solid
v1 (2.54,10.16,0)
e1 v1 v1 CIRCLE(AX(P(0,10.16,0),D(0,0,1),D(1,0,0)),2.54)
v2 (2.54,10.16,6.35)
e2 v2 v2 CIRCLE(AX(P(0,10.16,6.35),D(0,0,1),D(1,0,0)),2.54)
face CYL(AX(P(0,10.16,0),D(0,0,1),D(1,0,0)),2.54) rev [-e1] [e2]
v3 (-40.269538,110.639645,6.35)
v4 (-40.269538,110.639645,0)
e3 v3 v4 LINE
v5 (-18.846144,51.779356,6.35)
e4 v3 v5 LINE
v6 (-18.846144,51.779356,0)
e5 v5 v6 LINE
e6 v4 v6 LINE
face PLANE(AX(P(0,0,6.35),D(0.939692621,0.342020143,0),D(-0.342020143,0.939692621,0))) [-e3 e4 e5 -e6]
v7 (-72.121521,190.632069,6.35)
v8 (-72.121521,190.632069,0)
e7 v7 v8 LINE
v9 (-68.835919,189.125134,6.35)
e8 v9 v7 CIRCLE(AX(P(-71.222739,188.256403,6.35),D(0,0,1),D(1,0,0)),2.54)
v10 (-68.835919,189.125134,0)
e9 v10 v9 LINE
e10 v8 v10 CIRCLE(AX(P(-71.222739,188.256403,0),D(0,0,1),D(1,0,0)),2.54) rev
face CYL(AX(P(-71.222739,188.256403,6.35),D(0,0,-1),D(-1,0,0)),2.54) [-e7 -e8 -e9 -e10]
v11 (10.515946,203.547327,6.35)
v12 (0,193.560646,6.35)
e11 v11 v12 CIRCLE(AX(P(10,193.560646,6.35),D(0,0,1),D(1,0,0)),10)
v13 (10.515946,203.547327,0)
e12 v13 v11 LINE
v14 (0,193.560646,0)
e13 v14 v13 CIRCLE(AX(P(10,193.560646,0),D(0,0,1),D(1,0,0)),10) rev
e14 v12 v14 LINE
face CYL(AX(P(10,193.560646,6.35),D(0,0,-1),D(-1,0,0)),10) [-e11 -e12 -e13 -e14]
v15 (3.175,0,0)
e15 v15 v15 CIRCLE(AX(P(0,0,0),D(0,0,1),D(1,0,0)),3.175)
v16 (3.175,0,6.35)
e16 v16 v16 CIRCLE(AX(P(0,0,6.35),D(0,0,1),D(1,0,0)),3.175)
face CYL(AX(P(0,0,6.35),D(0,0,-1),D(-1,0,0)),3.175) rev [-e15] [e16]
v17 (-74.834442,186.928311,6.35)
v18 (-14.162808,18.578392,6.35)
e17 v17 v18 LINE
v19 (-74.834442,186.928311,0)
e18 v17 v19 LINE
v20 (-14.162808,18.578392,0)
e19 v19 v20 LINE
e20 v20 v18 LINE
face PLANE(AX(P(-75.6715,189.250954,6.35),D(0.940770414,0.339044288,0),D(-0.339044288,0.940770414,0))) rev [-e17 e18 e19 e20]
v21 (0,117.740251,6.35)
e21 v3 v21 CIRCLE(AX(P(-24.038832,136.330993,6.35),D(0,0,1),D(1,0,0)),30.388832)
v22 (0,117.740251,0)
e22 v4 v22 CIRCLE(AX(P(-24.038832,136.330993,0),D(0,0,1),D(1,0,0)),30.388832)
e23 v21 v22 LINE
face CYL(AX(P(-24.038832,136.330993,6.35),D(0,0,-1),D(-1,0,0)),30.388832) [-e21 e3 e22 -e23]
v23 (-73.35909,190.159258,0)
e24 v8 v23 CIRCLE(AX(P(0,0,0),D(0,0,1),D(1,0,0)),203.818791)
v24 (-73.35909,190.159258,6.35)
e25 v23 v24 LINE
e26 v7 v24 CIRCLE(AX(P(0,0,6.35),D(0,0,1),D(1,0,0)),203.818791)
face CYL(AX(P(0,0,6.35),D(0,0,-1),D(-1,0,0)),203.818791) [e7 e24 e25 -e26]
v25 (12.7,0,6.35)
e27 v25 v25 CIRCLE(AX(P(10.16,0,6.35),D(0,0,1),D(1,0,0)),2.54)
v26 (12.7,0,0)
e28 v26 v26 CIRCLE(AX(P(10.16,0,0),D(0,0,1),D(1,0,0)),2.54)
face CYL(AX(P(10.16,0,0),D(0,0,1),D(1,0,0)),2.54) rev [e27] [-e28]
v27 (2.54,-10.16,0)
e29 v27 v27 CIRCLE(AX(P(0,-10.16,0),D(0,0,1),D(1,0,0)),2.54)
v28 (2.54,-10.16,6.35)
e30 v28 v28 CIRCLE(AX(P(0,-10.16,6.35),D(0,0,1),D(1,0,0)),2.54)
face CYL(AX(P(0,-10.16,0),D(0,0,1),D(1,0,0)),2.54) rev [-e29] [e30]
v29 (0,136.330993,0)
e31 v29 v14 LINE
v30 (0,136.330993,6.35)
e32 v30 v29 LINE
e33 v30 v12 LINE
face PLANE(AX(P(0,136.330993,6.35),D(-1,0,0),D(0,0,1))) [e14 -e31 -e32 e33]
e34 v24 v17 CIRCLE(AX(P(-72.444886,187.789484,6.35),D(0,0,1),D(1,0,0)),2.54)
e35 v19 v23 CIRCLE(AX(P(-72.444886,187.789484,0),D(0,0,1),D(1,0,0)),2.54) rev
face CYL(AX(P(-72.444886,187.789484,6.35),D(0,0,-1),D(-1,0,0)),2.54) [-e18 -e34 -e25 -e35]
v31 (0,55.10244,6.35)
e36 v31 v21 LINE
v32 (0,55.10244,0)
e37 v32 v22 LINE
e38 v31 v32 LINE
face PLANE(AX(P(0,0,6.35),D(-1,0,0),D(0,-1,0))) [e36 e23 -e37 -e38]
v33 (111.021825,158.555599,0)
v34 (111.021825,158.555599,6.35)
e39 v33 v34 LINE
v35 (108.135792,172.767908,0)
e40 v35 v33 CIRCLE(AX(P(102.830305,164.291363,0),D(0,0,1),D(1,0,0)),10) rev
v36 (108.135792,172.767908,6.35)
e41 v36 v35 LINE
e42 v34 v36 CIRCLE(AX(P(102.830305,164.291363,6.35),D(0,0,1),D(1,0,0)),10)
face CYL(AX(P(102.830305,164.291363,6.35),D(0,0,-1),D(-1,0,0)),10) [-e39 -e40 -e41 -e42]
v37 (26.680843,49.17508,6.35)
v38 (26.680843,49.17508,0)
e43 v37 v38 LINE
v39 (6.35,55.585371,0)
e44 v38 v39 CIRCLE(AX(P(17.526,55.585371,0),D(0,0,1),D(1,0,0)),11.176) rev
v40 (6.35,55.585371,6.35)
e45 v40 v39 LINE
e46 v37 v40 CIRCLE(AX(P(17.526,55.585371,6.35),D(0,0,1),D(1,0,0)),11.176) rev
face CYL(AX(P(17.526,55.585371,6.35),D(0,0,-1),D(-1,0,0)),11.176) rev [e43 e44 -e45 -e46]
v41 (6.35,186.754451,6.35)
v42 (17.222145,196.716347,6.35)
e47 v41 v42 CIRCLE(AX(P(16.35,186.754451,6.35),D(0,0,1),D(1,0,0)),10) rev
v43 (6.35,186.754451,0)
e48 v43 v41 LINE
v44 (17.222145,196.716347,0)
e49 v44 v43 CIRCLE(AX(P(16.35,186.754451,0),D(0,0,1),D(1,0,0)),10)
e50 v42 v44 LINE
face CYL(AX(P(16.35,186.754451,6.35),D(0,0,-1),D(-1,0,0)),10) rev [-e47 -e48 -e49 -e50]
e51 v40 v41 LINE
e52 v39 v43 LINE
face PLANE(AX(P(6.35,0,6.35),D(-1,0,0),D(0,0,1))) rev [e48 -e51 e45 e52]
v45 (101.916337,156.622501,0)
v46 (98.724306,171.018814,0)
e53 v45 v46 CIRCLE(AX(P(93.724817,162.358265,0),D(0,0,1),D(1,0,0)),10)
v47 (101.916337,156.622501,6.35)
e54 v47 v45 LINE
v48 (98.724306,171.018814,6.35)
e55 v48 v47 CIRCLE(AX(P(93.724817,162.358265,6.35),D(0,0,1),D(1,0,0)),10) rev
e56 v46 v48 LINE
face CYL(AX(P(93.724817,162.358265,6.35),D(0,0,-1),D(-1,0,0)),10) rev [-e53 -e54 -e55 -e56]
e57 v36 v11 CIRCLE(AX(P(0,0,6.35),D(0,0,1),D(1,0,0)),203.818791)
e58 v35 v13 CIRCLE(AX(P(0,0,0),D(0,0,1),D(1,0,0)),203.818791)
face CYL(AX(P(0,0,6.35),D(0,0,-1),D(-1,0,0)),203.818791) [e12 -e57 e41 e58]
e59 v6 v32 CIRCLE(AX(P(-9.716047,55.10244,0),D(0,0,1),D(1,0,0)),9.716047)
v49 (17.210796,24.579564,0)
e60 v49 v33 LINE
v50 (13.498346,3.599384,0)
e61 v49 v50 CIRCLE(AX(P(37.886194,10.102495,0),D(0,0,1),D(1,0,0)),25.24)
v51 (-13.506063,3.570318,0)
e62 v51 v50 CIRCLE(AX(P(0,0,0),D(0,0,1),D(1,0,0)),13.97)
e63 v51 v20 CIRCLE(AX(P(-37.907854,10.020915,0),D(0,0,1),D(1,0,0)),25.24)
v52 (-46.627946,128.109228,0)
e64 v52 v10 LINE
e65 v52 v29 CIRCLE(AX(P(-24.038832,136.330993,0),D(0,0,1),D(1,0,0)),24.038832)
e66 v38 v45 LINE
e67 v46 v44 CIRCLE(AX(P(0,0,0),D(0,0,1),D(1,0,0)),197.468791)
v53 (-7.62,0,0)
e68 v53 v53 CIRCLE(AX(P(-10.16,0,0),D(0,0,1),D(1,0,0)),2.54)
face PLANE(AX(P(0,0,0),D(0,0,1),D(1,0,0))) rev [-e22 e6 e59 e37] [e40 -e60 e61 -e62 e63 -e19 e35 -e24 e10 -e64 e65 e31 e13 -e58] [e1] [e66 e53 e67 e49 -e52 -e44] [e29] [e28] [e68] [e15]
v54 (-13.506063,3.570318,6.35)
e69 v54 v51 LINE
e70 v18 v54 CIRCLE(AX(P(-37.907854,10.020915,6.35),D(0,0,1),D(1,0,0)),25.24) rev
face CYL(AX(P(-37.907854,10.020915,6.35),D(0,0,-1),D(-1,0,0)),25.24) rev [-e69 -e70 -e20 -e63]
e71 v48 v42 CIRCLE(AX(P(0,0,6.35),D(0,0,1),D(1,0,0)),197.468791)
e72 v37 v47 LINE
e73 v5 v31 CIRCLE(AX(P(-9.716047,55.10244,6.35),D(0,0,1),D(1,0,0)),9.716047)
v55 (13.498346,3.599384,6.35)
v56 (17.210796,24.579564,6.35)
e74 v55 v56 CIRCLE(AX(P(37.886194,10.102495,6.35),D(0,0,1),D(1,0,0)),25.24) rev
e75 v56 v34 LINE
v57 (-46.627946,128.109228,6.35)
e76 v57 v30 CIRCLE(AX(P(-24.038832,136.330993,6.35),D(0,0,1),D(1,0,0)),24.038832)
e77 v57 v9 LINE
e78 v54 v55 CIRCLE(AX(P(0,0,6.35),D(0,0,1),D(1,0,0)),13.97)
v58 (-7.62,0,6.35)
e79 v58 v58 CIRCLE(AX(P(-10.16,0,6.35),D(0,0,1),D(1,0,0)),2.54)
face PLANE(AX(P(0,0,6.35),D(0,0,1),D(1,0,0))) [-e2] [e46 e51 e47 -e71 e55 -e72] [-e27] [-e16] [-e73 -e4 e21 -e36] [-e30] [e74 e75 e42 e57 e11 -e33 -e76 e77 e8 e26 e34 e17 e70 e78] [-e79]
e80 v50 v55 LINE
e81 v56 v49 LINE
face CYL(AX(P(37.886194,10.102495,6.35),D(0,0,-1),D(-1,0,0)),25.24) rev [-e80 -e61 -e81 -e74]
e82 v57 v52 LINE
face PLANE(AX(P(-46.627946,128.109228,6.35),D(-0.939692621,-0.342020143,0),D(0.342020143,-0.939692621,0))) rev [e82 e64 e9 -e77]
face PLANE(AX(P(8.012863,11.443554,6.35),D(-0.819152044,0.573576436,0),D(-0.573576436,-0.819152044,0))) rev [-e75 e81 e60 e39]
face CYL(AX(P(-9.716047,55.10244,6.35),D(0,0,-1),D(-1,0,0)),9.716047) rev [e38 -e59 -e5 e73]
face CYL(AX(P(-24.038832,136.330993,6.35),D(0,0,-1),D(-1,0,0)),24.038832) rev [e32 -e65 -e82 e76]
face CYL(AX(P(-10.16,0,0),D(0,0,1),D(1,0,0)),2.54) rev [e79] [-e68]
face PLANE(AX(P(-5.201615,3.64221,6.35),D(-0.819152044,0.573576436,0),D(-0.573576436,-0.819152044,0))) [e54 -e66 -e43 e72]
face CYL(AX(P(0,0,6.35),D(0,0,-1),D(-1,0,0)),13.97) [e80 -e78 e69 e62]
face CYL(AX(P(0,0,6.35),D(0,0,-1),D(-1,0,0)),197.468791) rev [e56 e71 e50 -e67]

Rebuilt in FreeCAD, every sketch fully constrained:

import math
import FreeCAD as App
import Part
import Sketcher
Q = App.Units.Quantity


def edges_at(feature, points):
    """Names of the edges that pass closest to the given points."""
    edges = feature.Shape.Edges
    near = lambda p: min(range(len(edges)), key=lambda i: edges[i].distToShape(Part.Vertex(*p))[0])
    return sorted({f"Edge{near(p) + 1}" for p in points})

doc = App.newDocument("Part")
body = doc.addObject("PartDesign::Body", "Body")

# Sketch on XY plane
sketch1 = body.newObject("Sketcher::SketchObject", "Sketch")
sketch1.AttachmentSupport = (doc.getObject("XY_Plane"), [""])
sketch1.MapMode = "FlatFace"
sketch1.addGeometry(Part.LineSegment(App.Vector(-75.7, 189.3, 0), App.Vector(-10.7, 9, 0)), False)
sketch1.addGeometry(Part.ArcOfCircle(Part.Circle(App.Vector(0, 0, 0), App.Vector(0, 0, 1), 14), math.radians(140), math.radians(415)), False)
sketch1.addGeometry(Part.LineSegment(App.Vector(8, 11.4, 0), App.Vector(116.9, 167, 0)), False)
sketch1.addGeometry(Part.ArcOfCircle(Part.Circle(App.Vector(0, 0, 0), App.Vector(0, 0, 1), 203.8), math.radians(55), math.radians(90)), False)
sketch1.addGeometry(Part.LineSegment(App.Vector(0, 203.8, 0), App.Vector(0, 136.3, 0)), False)
sketch1.addGeometry(Part.ArcOfCircle(Part.Circle(App.Vector(-24, 136.3, 0), App.Vector(0, 0, 1), 24), math.radians(-160), math.radians(0)), False)
sketch1.addGeometry(Part.LineSegment(App.Vector(-46.6, 128.1, 0), App.Vector(-69.7, 191.5, 0)), False)
sketch1.addGeometry(Part.ArcOfCircle(Part.Circle(App.Vector(0, 0, 0), App.Vector(0, 0, 1), 203.8), math.radians(110), math.radians(111.79)), False)
sketch1.addGeometry(Part.Circle(App.Vector(0, 0, 0), App.Vector(0, 0, 1), 3.2), False)
sketch1.addGeometry(Part.LineSegment(App.Vector(0, 117.7, 0), App.Vector(0, 55.1, 0)), False)
sketch1.addGeometry(Part.ArcOfCircle(Part.Circle(App.Vector(-9.7, 55.1, 0), App.Vector(0, 0, 1), 9.7), math.radians(-160), math.radians(0)), False)
sketch1.addGeometry(Part.LineSegment(App.Vector(-18.8, 51.8, 0), App.Vector(-40.3, 110.6, 0)), False)
sketch1.addGeometry(Part.ArcOfCircle(Part.Circle(App.Vector(-24, 136.3, 0), App.Vector(0, 0, 1), 30.4), math.radians(-122), math.radians(-38)), False)
sketch1.addGeometry(Part.LineSegment(App.Vector(108, 165.3, 0), App.Vector(26.7, 49.2, 0)), False)
sketch1.addGeometry(Part.ArcOfCircle(Part.Circle(App.Vector(17.5, 55.6, 0), App.Vector(0, 0, 1), 11.2), math.radians(-180), math.radians(-35)), False)
sketch1.addGeometry(Part.LineSegment(App.Vector(6.3, 55.6, 0), App.Vector(6.3, 197.4, 0)), False)
sketch1.addGeometry(Part.ArcOfCircle(Part.Circle(App.Vector(0, 0, 0), App.Vector(0, 0, 1), 197.5), math.radians(57), math.radians(88)), False)
sketch1.addConstraint(Sketcher.Constraint("Coincident", 0, 2, 1, 1))
sketch1.addConstraint(Sketcher.Constraint("Coincident", 1, 2, 2, 1))
sketch1.addConstraint(Sketcher.Constraint("Coincident", 2, 2, 3, 1))
sketch1.addConstraint(Sketcher.Constraint("Coincident", 3, 2, 4, 1))
sketch1.addConstraint(Sketcher.Constraint("Tangent", 4, 2, 5, 2))
sketch1.addConstraint(Sketcher.Constraint("Tangent", 5, 1, 6, 1))
sketch1.addConstraint(Sketcher.Constraint("Coincident", 6, 2, 7, 1))
sketch1.addConstraint(Sketcher.Constraint("Coincident", 7, 2, 0, 1))
sketch1.addConstraint(Sketcher.Constraint("Tangent", 9, 2, 10, 2))
sketch1.addConstraint(Sketcher.Constraint("Tangent", 10, 1, 11, 1))
sketch1.addConstraint(Sketcher.Constraint("Coincident", 11, 2, 12, 1))
sketch1.addConstraint(Sketcher.Constraint("Coincident", 12, 2, 9, 1))
sketch1.addConstraint(Sketcher.Constraint("Tangent", 13, 2, 14, 2))
sketch1.addConstraint(Sketcher.Constraint("Tangent", 14, 1, 15, 1))
sketch1.addConstraint(Sketcher.Constraint("Coincident", 15, 2, 16, 2))
sketch1.addConstraint(Sketcher.Constraint("Coincident", 16, 1, 13, 1))
sketch1.addConstraint(Sketcher.Constraint("Vertical", 4))
sketch1.addConstraint(Sketcher.Constraint("Vertical", 9))
sketch1.addConstraint(Sketcher.Constraint("Vertical", 15))
sketch1.addConstraint(Sketcher.Constraint("Coincident", 1, 3, -1, 1))
sketch1.addConstraint(Sketcher.Constraint("Coincident", 3, 3, -1, 1))
sketch1.addConstraint(Sketcher.Constraint("Coincident", 7, 3, -1, 1))
sketch1.addConstraint(Sketcher.Constraint("Coincident", 8, 3, -1, 1))
sketch1.addConstraint(Sketcher.Constraint("Coincident", 16, 3, -1, 1))
sketch1.addConstraint(Sketcher.Constraint("Coincident", 12, 3, 5, 3))
sketch1.addConstraint(Sketcher.Constraint("Equal", 3, 7))
sketch1.addConstraint(Sketcher.Constraint("PointOnObject", 3, 2, -2))
sketch1.addConstraint(Sketcher.Constraint("PointOnObject", 9, 2, -2))
sketch1.addConstraint(Sketcher.Constraint("Parallel", 6, 11))
sketch1.addConstraint(Sketcher.Constraint("Parallel", 2, 13))
sketch1.addConstraint(Sketcher.Constraint("Diameter", 8, Q("0.25 in")))
sketch1.addConstraint(Sketcher.Constraint("Radius", 1, Q("0.55 in")))
sketch1.addConstraint(Sketcher.Constraint("Radius", 14, Q("0.44 in")))
sketch1.addConstraint(Sketcher.Constraint("Angle", 2, Q("55 deg")))
sketch1.addConstraint(Sketcher.Constraint("Angle", 6, Q("110 deg")))
sketch1.addConstraint(Sketcher.Constraint("DistanceY", 4, 2, 4, 1, Q("2.6569999 in")))
sketch1.addConstraint(Sketcher.Constraint("DistanceX", -1, 1, 14, 3, Q("0.69 in")))
sketch1.addConstraint(Sketcher.Constraint("Distance", 6, Q("2.6569999 in")))
sketch1.addConstraint(Sketcher.Constraint("Radius", 3, Q("203.818791 mm")))
sketch1.addConstraint(Sketcher.Constraint("Radius", 16, Q("197.468791 mm")))
sketch1.addConstraint(Sketcher.Constraint("Radius", 10, Q("9.716047 mm")))
sketch1.addConstraint(Sketcher.Constraint("Radius", 12, Q("30.388832 mm")))
sketch1.addConstraint(Sketcher.Constraint("DistanceY", 9, 2, 9, 1, Q("62.637811 mm")))
sketch1.addConstraint(Sketcher.Constraint("DistanceX", 7, 2, -1, 1, Q("75.6715 mm")))
sketch1.addConstraint(Sketcher.Constraint("DistanceY", 15, 1, 15, 2, Q("141.781295 mm")))
sketch1.addConstraint(Sketcher.Constraint("DistanceY", -1, 1, 0, 2, Q("8.978151 mm")))
sketch1.addConstraint(Sketcher.Constraint("DistanceY", -1, 1, 2, 2, Q("166.958579 mm")))
pad1 = body.newObject("PartDesign::Pad", "Pad")
pad1.Profile = sketch1
pad1.Length = Q("0.25 in")
doc.recompute()

fillet = body.newObject("PartDesign::Fillet", "Fillet")
fillet.Base = (pad1, edges_at(pad1, [
    (0, 203.819, 3.175),
    (116.906, 166.959, 3.175),
    (108.003, 165.316, 3.175),
    (6.35, 197.367, 3.175),
]))
fillet.Radius = 10
doc.recompute()

fillet2 = body.newObject("PartDesign::Fillet", "Fillet001")
fillet2.Base = (fillet, edges_at(fillet, [(-75.671, 189.251, 3.175), (-69.71, 191.527, 3.175)]))
fillet2.Radius = Q("0.1 in")

# Sketch on XY plane
sketch2 = body.newObject("Sketcher::SketchObject", "Sketch001")
sketch2.AttachmentSupport = (doc.getObject("XY_Plane"), [""])
sketch2.MapMode = "FlatFace"
sketch2.AttachmentOffset = App.Placement(App.Vector(0, 0, 0.25 * 25.4), App.Rotation())
sketch2.addGeometry(Part.Circle(App.Vector(0, 10.2, 0), App.Vector(0, 0, 1), 2.5), False)
sketch2.addGeometry(Part.Circle(App.Vector(10.2, 0, 0), App.Vector(0, 0, 1), 2.5), False)
sketch2.addGeometry(Part.Circle(App.Vector(0, -10.2, 0), App.Vector(0, 0, 1), 2.5), False)
sketch2.addGeometry(Part.Circle(App.Vector(-10.2, 0, 0), App.Vector(0, 0, 1), 2.5), False)
sketch2.addConstraint(Sketcher.Constraint("Equal", 0, 1))
sketch2.addConstraint(Sketcher.Constraint("Equal", 1, 2))
sketch2.addConstraint(Sketcher.Constraint("Equal", 2, 3))
sketch2.addConstraint(Sketcher.Constraint("Symmetric", 0, 3, 2, 3, -1, 1))
sketch2.addConstraint(Sketcher.Constraint("Symmetric", 1, 3, 3, 3, -1, 1))
sketch2.addConstraint(Sketcher.Constraint("PointOnObject", 0, 3, -2))
sketch2.addConstraint(Sketcher.Constraint("PointOnObject", 1, 3, -1))
sketch2.addConstraint(Sketcher.Constraint("Diameter", 0, Q("0.2 in")))
sketch2.addConstraint(Sketcher.Constraint("DistanceY", -1, 1, 0, 3, Q("0.4 in")))
sketch2.addConstraint(Sketcher.Constraint("DistanceX", -1, 1, 1, 3, Q("0.4 in")))
pocket1 = body.newObject("PartDesign::Pocket", "Pocket")
pocket1.Profile = sketch2
pocket1.Type = "ThroughAll"
doc.recompute()

fillet3 = body.newObject("PartDesign::Fillet", "Fillet002")
fillet3.Base = (pocket1, edges_at(pocket1, [(8.013, 11.444, 3.175), (-10.703, 8.978, 3.175)]))
fillet3.Radius = 25.24

doc.recompute()
